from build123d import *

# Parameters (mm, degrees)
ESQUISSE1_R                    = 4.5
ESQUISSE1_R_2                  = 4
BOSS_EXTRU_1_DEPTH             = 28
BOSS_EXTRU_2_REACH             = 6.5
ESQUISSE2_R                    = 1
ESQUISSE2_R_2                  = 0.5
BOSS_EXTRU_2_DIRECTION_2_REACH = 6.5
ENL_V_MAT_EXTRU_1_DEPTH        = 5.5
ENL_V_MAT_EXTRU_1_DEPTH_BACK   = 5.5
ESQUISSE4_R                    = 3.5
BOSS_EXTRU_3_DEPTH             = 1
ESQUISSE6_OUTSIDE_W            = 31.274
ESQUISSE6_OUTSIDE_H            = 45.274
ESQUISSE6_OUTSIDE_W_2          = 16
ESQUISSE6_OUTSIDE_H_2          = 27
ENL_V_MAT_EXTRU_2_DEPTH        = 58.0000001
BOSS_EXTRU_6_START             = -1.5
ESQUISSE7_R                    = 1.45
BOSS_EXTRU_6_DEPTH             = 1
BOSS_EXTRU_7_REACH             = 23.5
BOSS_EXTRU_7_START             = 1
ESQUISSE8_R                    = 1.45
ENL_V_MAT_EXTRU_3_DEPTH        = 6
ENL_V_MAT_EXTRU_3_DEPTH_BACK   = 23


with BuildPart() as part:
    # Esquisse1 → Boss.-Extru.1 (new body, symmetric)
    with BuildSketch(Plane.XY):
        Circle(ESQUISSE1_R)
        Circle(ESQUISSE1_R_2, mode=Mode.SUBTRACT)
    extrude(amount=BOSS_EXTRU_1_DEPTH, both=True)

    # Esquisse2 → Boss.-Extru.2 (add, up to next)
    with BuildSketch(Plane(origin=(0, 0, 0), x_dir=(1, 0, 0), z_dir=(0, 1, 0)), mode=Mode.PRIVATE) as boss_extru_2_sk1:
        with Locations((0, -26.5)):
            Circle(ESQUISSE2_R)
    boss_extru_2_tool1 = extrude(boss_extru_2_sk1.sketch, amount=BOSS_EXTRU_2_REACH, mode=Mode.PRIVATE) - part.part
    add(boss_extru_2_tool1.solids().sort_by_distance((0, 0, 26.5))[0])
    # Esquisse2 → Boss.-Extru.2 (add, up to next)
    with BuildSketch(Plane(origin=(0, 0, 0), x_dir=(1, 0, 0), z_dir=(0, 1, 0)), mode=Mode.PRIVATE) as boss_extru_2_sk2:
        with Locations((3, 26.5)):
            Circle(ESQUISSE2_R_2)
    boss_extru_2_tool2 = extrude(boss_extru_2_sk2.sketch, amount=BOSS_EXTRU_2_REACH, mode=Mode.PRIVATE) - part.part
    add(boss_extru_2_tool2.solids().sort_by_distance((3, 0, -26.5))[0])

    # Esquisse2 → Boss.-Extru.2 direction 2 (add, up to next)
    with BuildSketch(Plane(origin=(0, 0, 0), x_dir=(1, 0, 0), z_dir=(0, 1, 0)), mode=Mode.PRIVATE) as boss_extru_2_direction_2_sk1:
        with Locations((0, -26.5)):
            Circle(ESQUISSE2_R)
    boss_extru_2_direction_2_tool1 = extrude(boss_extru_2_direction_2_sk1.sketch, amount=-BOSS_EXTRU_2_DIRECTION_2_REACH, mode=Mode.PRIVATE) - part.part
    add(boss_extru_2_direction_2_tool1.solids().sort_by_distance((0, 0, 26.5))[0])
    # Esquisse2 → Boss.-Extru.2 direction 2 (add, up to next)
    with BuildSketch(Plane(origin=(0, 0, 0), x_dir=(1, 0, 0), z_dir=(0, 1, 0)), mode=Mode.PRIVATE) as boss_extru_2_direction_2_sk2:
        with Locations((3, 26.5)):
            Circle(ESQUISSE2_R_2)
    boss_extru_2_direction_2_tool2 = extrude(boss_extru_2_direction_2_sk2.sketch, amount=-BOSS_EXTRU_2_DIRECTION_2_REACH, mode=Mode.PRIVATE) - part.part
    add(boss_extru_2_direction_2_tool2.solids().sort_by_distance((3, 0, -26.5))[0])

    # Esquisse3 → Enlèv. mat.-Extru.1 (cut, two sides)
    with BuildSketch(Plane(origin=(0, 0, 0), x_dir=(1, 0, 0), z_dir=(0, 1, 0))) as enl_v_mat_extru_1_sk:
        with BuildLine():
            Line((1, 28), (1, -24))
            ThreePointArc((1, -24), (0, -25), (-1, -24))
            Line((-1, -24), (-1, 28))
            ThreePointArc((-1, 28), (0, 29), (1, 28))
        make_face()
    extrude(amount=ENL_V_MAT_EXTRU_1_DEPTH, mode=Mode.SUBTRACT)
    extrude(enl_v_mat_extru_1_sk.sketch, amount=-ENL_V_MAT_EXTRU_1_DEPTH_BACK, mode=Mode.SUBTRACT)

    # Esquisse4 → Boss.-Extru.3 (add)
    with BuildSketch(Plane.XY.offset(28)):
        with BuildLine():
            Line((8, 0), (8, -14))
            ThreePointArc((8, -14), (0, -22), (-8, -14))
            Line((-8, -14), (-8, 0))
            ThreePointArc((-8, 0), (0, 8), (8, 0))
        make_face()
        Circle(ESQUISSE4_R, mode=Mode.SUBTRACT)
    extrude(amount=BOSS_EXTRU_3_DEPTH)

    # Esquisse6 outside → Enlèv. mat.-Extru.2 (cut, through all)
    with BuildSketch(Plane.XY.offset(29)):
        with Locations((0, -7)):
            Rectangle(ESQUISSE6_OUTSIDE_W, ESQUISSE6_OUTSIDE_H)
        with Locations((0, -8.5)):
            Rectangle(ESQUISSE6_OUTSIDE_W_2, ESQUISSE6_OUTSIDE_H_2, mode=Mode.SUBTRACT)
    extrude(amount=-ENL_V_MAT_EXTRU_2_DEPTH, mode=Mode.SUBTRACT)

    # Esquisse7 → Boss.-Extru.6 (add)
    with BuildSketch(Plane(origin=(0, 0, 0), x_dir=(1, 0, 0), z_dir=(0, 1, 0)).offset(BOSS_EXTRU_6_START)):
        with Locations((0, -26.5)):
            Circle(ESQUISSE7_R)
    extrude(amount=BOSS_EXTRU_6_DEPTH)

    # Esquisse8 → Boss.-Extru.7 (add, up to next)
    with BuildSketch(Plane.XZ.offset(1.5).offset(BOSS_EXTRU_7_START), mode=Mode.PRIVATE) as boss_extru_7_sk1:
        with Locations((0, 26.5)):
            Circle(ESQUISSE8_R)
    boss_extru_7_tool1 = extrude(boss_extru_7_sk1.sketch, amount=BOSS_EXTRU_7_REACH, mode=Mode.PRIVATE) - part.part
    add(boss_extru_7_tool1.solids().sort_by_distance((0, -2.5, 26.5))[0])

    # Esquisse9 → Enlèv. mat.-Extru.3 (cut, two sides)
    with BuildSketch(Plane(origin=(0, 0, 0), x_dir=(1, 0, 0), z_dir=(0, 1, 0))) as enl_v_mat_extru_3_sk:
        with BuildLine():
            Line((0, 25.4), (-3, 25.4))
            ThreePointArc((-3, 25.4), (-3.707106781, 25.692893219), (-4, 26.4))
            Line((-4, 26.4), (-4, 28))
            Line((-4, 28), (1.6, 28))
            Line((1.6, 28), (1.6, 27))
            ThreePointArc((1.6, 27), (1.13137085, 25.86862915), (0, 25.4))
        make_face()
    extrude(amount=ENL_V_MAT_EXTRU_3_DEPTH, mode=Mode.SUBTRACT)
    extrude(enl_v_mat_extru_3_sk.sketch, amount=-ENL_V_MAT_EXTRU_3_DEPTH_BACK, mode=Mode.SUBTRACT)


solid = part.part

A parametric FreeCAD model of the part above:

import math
import FreeCAD as App
import Part
import Sketcher


def add_polygon(sketch, points):
    """Adds a closed chain of lines whose ends are joined by coincident constraints."""
    first, n = sketch.GeometryCount, len(points)
    for a, b in zip(points, points[1:] + points[:1]):
        sketch.addGeometry(Part.LineSegment(App.Vector(*a, 0), App.Vector(*b, 0)), False)
    for i in range(n):
        sketch.addConstraint(Sketcher.Constraint("Coincident", first + i, 2, first + (i + 1) % n, 1))

doc = App.newDocument("Part")
body = doc.addObject("PartDesign::Body", "Body")

# Sketch on XY plane
sketch1 = doc.addObject("Sketcher::SketchObject", "Sketch")
body.addObject(sketch1)
sketch1.AttachmentSupport = (doc.XY_Plane, [""])
sketch1.MapMode = "FlatFace"
sketch1.addGeometry([
    Part.Circle(App.Vector(0, 0, 0), App.Vector(0, 0, 1), 4.5),
    Part.Circle(App.Vector(0, 0, 0), App.Vector(0, 0, 1), 4),
], False)
sketch1.addConstraint([
    Sketcher.Constraint("Coincident", 0, 3, -1, 1),
    Sketcher.Constraint("Coincident", 1, 3, -1, 1),
    Sketcher.Constraint("Diameter", 0, 9.0),
    Sketcher.Constraint("Diameter", 1, 8.0),
])
pad1 = doc.addObject("PartDesign::Pad", "Pad")
body.addObject(pad1)
pad1.Profile = sketch1
pad1.Length = 56
pad1.Midplane = True

# Sketch on XZ plane
sketch2 = doc.addObject("Sketcher::SketchObject", "Sketch001")
body.addObject(sketch2)
sketch2.AttachmentSupport = (doc.XZ_Plane, [""])
sketch2.MapMode = "FlatFace"
sketch2.addGeometry(Part.Circle(App.Vector(0, 26.5, 0), App.Vector(0, 0, 1), 1), False)
sketch2.addConstraint([
    Sketcher.Constraint("PointOnObject", 0, 3, -2),
    Sketcher.Constraint("Diameter", 0, 2.0),
    Sketcher.Constraint("DistanceY", -1, 1, 0, 3, 26.5),
])
pad2 = doc.addObject("PartDesign::Pad", "Pad001")
body.addObject(pad2)
pad2.Profile = sketch2
pad2.Type = "UpToFirst"
pad2.Reversed = True

# Sketch on XZ plane
sketch3 = doc.addObject("Sketcher::SketchObject", "Sketch002")
body.addObject(sketch3)
sketch3.AttachmentSupport = (doc.XZ_Plane, [""])
sketch3.MapMode = "FlatFace"
sketch3.addGeometry(Part.Circle(App.Vector(3, -26.5, 0), App.Vector(0, 0, 1), 0.5), False)
sketch3.addConstraint([
    Sketcher.Constraint("Diameter", 0, 1.0),
    Sketcher.Constraint("DistanceX", -1, 1, 0, 3, 3.0),
    Sketcher.Constraint("DistanceY", 0, 3, -1, 1, 26.5),
])
pad3 = doc.addObject("PartDesign::Pad", "Pad002")
body.addObject(pad3)
pad3.Profile = sketch3
pad3.Type = "UpToFirst"
pad3.Reversed = True

# Sketch on XZ plane
sketch4 = doc.addObject("Sketcher::SketchObject", "Sketch003")
body.addObject(sketch4)
sketch4.AttachmentSupport = (doc.XZ_Plane, [""])
sketch4.MapMode = "FlatFace"
sketch4.addGeometry(Part.Circle(App.Vector(0, 26.5, 0), App.Vector(0, 0, 1), 1), False)
sketch4.addConstraint([
    Sketcher.Constraint("PointOnObject", 0, 3, -2),
    Sketcher.Constraint("Diameter", 0, 2.0),
    Sketcher.Constraint("DistanceY", -1, 1, 0, 3, 26.5),
])
pad4 = doc.addObject("PartDesign::Pad", "Pad003")
body.addObject(pad4)
pad4.Profile = sketch4
pad4.Type = "UpToFirst"

# Sketch on XZ plane
sketch5 = doc.addObject("Sketcher::SketchObject", "Sketch004")
body.addObject(sketch5)
sketch5.AttachmentSupport = (doc.XZ_Plane, [""])
sketch5.MapMode = "FlatFace"
sketch5.addGeometry(Part.Circle(App.Vector(3, -26.5, 0), App.Vector(0, 0, 1), 0.5), False)
sketch5.addConstraint([
    Sketcher.Constraint("Diameter", 0, 1.0),
    Sketcher.Constraint("DistanceX", -1, 1, 0, 3, 3.0),
    Sketcher.Constraint("DistanceY", 0, 3, -1, 1, 26.5),
])
pad5 = doc.addObject("PartDesign::Pad", "Pad004")
body.addObject(pad5)
pad5.Profile = sketch5
pad5.Type = "UpToFirst"

# Sketch on XZ plane
sketch6 = doc.addObject("Sketcher::SketchObject", "Sketch005")
body.addObject(sketch6)
sketch6.AttachmentSupport = (doc.XZ_Plane, [""])
sketch6.MapMode = "FlatFace"
sketch6.addGeometry([
    Part.LineSegment(App.Vector(1, 24, 0), App.Vector(1, -28, 0)),
    Part.ArcOfCircle(Part.Circle(App.Vector(0, -28, 0), App.Vector(0, 0, 1), 1), math.radians(180), math.radians(360)),
    Part.LineSegment(App.Vector(-1, -28, 0), App.Vector(-1, 24, 0)),
    Part.ArcOfCircle(Part.Circle(App.Vector(0, 24, 0), App.Vector(0, 0, 1), 1), math.radians(0), math.radians(180)),
], False)
sketch6.addConstraint([
    Sketcher.Constraint("Tangent", 0, 2, 1, 2),
    Sketcher.Constraint("Tangent", 1, 1, 2, 1),
    Sketcher.Constraint("Tangent", 2, 2, 3, 2),
    Sketcher.Constraint("Tangent", 3, 1, 0, 1),
    Sketcher.Constraint("Vertical", 0),
    Sketcher.Constraint("Vertical", 2),
    Sketcher.Constraint("PointOnObject", 1, 3, -2),
    Sketcher.Constraint("Radius", 1, 1.0),
    Sketcher.Constraint("DistanceY", 0, 2, 0, 1, 52.0),
    Sketcher.Constraint("DistanceY", 1, 3, -1, 1, 28.0),
])
pocket1 = doc.addObject("PartDesign::Pocket", "Pocket")
body.addObject(pocket1)
pocket1.Profile = sketch6
pocket1.Type = "ThroughAll"
pocket1.Midplane = True

# Sketch on XY plane
sketch7 = doc.addObject("Sketcher::SketchObject", "Sketch006")
body.addObject(sketch7)
sketch7.AttachmentSupport = (doc.XY_Plane, [""])
sketch7.MapMode = "FlatFace"
sketch7.AttachmentOffset = App.Placement(App.Vector(0, 0, 28), App.Rotation())
sketch7.addGeometry([
    Part.LineSegment(App.Vector(8, -14, 0), App.Vector(8, 0, 0)),  # 0
    Part.ArcOfCircle(Part.Circle(App.Vector(0, 0, 0), App.Vector(0, 0, 1), 8), math.radians(0), math.radians(180)),  # 1
    Part.LineSegment(App.Vector(-8, 0, 0), App.Vector(-8, -14, 0)),  # 2
    Part.ArcOfCircle(Part.Circle(App.Vector(0, -14, 0), App.Vector(0, 0, 1), 8), math.radians(180), math.radians(360)),  # 3
    Part.Circle(App.Vector(0, 0, 0), App.Vector(0, 0, 1), 3.5),  # 4
], False)
sketch7.addConstraint([
    Sketcher.Constraint("Tangent", 0, 2, 1, 1),
    Sketcher.Constraint("Tangent", 1, 2, 2, 1),
    Sketcher.Constraint("Tangent", 2, 2, 3, 1),
    Sketcher.Constraint("Tangent", 3, 2, 0, 1),
    Sketcher.Constraint("Vertical", 0),
    Sketcher.Constraint("Vertical", 2),
    Sketcher.Constraint("Coincident", 1, 3, -1, 1),
    Sketcher.Constraint("Coincident", 4, 3, -1, 1),
    Sketcher.Constraint("Diameter", 4, 7.0),
    Sketcher.Constraint("Radius", 1, 8.0),
    Sketcher.Constraint("DistanceY", 0, 1, 0, 2, 14.0),
])
pad6 = doc.addObject("PartDesign::Pad", "Pad005")
body.addObject(pad6)
pad6.Profile = sketch7
pad6.Length = 1

# Sketch on XY plane
sketch8 = doc.addObject("Sketcher::SketchObject", "Sketch007")
body.addObject(sketch8)
sketch8.AttachmentSupport = (doc.XY_Plane, [""])
sketch8.MapMode = "FlatFace"
sketch8.AttachmentOffset = App.Placement(App.Vector(0, 0, 29), App.Rotation())
add_polygon(sketch8, [(-16, 16), (-16, -30), (16, -30), (16, 16)])  # lines 0-3
add_polygon(sketch8, [(8, -22), (-8, -22), (-8, 5), (8, 5)])  # lines 4-7
sketch8.addConstraint([
    Sketcher.Constraint("Vertical", 0),
    Sketcher.Constraint("Horizontal", 1),
    Sketcher.Constraint("Vertical", 2),
    Sketcher.Constraint("Horizontal", 3),
    Sketcher.Constraint("Horizontal", 4),
    Sketcher.Constraint("Vertical", 5),
    Sketcher.Constraint("Horizontal", 6),
    Sketcher.Constraint("Vertical", 7),
    Sketcher.Constraint("DistanceX", 4, 2, 4, 1, 16.0),
    Sketcher.Constraint("DistanceY", 5, 1, 5, 2, 27.0),
    Sketcher.Constraint("DistanceX", 4, 2, -1, 1, 8.0),
    Sketcher.Constraint("DistanceY", 4, 2, -1, 1, 22.0),
    Sketcher.Constraint("DistanceX", 1, 1, 1, 2, 31.274),
    Sketcher.Constraint("DistanceY", 0, 2, 0, 1, 45.274),
    Sketcher.Constraint("DistanceX", 0, 2, -1, 1, 15.637),
    Sketcher.Constraint("DistanceY", 0, 2, -1, 1, 29.637),
])
pocket2 = doc.addObject("PartDesign::Pocket", "Pocket001")
body.addObject(pocket2)
pocket2.Profile = sketch8
pocket2.Type = "ThroughAll"

# Sketch on XZ plane
sketch9 = doc.addObject("Sketcher::SketchObject", "Sketch008")
body.addObject(sketch9)
sketch9.AttachmentSupport = (doc.XZ_Plane, [""])
sketch9.MapMode = "FlatFace"
sketch9.AttachmentOffset = App.Placement(App.Vector(0, 0, 1.5), App.Rotation())
sketch9.addGeometry(Part.Circle(App.Vector(0, 26.5, 0), App.Vector(0, 0, 1), 1.4), False)
sketch9.addConstraint([
    Sketcher.Constraint("PointOnObject", 0, 3, -2),
    Sketcher.Constraint("Diameter", 0, 2.9),
    Sketcher.Constraint("DistanceY", -1, 1, 0, 3, 26.5),
])
pad7 = doc.addObject("PartDesign::Pad", "Pad006")
body.addObject(pad7)
pad7.Profile = sketch9
pad7.Length = 1
pad7.Reversed = True

# Sketch on XZ plane
sketch10 = doc.addObject("Sketcher::SketchObject", "Sketch009")
body.addObject(sketch10)
sketch10.AttachmentSupport = (doc.XZ_Plane, [""])
sketch10.MapMode = "FlatFace"
sketch10.AttachmentOffset = App.Placement(App.Vector(0, 0, 2.5), App.Rotation())
sketch10.addGeometry(Part.Circle(App.Vector(0, 26.5, 0), App.Vector(0, 0, 1), 1.4), False)
sketch10.addConstraint([
    Sketcher.Constraint("PointOnObject", 0, 3, -2),
    Sketcher.Constraint("Diameter", 0, 2.9),
    Sketcher.Constraint("DistanceY", -1, 1, 0, 3, 26.5),
])
pad8 = doc.addObject("PartDesign::Pad", "Pad007")
body.addObject(pad8)
pad8.Profile = sketch10
pad8.Type = "UpToFirst"

# Sketch on XZ plane
sketch11 = doc.addObject("Sketcher::SketchObject", "Sketch010")
body.addObject(sketch11)
sketch11.AttachmentSupport = (doc.XZ_Plane, [""])
sketch11.MapMode = "FlatFace"
sketch11.addGeometry([
    Part.LineSegment(App.Vector(-3, -25.4, 0), App.Vector(0, -25.4, 0)),  # 0
    Part.ArcOfCircle(Part.Circle(App.Vector(0, -27, 0), App.Vector(0, 0, 1), 1.6), math.radians(0), math.radians(90)),  # 1
    Part.LineSegment(App.Vector(1.6, -27, 0), App.Vector(1.6, -28, 0)),  # 2
    Part.LineSegment(App.Vector(1.6, -28, 0), App.Vector(-4, -28, 0)),  # 3
    Part.LineSegment(App.Vector(-4, -28, 0), App.Vector(-4, -26.4, 0)),  # 4
    Part.ArcOfCircle(Part.Circle(App.Vector(-3, -26.4, 0), App.Vector(0, 0, 1), 1), math.radians(90), math.radians(180)),  # 5
], False)
sketch11.addConstraint([
    Sketcher.Constraint("Tangent", 0, 2, 1, 2),
    Sketcher.Constraint("Tangent", 1, 1, 2, 1),
    Sketcher.Constraint("Coincident", 2, 2, 3, 1),
    Sketcher.Constraint("Coincident", 3, 2, 4, 1),
    Sketcher.Constraint("Tangent", 4, 2, 5, 2),
    Sketcher.Constraint("Tangent", 5, 1, 0, 1),
    Sketcher.Constraint("Horizontal", 0),
    Sketcher.Constraint("Vertical", 2),
    Sketcher.Constraint("Horizontal", 3),
    Sketcher.Constraint("Vertical", 4),
    Sketcher.Constraint("PointOnObject", 1, 3, -2),
    Sketcher.Constraint("Radius", 5, 1.0),
    Sketcher.Constraint("Radius", 1, 1.6),
    Sketcher.Constraint("DistanceX", 0, 1, 0, 2, 3.0),
    Sketcher.Constraint("DistanceY", 2, 2, 2, 1, 1.0),
    Sketcher.Constraint("DistanceY", 1, 3, -1, 1, 27.0),
])
pocket3 = doc.addObject("PartDesign::Pocket", "Pocket002")
body.addObject(pocket3)
pocket3.Profile = sketch11
pocket3.Type = "ThroughAll"
pocket3.Midplane = True

doc.recompute()
